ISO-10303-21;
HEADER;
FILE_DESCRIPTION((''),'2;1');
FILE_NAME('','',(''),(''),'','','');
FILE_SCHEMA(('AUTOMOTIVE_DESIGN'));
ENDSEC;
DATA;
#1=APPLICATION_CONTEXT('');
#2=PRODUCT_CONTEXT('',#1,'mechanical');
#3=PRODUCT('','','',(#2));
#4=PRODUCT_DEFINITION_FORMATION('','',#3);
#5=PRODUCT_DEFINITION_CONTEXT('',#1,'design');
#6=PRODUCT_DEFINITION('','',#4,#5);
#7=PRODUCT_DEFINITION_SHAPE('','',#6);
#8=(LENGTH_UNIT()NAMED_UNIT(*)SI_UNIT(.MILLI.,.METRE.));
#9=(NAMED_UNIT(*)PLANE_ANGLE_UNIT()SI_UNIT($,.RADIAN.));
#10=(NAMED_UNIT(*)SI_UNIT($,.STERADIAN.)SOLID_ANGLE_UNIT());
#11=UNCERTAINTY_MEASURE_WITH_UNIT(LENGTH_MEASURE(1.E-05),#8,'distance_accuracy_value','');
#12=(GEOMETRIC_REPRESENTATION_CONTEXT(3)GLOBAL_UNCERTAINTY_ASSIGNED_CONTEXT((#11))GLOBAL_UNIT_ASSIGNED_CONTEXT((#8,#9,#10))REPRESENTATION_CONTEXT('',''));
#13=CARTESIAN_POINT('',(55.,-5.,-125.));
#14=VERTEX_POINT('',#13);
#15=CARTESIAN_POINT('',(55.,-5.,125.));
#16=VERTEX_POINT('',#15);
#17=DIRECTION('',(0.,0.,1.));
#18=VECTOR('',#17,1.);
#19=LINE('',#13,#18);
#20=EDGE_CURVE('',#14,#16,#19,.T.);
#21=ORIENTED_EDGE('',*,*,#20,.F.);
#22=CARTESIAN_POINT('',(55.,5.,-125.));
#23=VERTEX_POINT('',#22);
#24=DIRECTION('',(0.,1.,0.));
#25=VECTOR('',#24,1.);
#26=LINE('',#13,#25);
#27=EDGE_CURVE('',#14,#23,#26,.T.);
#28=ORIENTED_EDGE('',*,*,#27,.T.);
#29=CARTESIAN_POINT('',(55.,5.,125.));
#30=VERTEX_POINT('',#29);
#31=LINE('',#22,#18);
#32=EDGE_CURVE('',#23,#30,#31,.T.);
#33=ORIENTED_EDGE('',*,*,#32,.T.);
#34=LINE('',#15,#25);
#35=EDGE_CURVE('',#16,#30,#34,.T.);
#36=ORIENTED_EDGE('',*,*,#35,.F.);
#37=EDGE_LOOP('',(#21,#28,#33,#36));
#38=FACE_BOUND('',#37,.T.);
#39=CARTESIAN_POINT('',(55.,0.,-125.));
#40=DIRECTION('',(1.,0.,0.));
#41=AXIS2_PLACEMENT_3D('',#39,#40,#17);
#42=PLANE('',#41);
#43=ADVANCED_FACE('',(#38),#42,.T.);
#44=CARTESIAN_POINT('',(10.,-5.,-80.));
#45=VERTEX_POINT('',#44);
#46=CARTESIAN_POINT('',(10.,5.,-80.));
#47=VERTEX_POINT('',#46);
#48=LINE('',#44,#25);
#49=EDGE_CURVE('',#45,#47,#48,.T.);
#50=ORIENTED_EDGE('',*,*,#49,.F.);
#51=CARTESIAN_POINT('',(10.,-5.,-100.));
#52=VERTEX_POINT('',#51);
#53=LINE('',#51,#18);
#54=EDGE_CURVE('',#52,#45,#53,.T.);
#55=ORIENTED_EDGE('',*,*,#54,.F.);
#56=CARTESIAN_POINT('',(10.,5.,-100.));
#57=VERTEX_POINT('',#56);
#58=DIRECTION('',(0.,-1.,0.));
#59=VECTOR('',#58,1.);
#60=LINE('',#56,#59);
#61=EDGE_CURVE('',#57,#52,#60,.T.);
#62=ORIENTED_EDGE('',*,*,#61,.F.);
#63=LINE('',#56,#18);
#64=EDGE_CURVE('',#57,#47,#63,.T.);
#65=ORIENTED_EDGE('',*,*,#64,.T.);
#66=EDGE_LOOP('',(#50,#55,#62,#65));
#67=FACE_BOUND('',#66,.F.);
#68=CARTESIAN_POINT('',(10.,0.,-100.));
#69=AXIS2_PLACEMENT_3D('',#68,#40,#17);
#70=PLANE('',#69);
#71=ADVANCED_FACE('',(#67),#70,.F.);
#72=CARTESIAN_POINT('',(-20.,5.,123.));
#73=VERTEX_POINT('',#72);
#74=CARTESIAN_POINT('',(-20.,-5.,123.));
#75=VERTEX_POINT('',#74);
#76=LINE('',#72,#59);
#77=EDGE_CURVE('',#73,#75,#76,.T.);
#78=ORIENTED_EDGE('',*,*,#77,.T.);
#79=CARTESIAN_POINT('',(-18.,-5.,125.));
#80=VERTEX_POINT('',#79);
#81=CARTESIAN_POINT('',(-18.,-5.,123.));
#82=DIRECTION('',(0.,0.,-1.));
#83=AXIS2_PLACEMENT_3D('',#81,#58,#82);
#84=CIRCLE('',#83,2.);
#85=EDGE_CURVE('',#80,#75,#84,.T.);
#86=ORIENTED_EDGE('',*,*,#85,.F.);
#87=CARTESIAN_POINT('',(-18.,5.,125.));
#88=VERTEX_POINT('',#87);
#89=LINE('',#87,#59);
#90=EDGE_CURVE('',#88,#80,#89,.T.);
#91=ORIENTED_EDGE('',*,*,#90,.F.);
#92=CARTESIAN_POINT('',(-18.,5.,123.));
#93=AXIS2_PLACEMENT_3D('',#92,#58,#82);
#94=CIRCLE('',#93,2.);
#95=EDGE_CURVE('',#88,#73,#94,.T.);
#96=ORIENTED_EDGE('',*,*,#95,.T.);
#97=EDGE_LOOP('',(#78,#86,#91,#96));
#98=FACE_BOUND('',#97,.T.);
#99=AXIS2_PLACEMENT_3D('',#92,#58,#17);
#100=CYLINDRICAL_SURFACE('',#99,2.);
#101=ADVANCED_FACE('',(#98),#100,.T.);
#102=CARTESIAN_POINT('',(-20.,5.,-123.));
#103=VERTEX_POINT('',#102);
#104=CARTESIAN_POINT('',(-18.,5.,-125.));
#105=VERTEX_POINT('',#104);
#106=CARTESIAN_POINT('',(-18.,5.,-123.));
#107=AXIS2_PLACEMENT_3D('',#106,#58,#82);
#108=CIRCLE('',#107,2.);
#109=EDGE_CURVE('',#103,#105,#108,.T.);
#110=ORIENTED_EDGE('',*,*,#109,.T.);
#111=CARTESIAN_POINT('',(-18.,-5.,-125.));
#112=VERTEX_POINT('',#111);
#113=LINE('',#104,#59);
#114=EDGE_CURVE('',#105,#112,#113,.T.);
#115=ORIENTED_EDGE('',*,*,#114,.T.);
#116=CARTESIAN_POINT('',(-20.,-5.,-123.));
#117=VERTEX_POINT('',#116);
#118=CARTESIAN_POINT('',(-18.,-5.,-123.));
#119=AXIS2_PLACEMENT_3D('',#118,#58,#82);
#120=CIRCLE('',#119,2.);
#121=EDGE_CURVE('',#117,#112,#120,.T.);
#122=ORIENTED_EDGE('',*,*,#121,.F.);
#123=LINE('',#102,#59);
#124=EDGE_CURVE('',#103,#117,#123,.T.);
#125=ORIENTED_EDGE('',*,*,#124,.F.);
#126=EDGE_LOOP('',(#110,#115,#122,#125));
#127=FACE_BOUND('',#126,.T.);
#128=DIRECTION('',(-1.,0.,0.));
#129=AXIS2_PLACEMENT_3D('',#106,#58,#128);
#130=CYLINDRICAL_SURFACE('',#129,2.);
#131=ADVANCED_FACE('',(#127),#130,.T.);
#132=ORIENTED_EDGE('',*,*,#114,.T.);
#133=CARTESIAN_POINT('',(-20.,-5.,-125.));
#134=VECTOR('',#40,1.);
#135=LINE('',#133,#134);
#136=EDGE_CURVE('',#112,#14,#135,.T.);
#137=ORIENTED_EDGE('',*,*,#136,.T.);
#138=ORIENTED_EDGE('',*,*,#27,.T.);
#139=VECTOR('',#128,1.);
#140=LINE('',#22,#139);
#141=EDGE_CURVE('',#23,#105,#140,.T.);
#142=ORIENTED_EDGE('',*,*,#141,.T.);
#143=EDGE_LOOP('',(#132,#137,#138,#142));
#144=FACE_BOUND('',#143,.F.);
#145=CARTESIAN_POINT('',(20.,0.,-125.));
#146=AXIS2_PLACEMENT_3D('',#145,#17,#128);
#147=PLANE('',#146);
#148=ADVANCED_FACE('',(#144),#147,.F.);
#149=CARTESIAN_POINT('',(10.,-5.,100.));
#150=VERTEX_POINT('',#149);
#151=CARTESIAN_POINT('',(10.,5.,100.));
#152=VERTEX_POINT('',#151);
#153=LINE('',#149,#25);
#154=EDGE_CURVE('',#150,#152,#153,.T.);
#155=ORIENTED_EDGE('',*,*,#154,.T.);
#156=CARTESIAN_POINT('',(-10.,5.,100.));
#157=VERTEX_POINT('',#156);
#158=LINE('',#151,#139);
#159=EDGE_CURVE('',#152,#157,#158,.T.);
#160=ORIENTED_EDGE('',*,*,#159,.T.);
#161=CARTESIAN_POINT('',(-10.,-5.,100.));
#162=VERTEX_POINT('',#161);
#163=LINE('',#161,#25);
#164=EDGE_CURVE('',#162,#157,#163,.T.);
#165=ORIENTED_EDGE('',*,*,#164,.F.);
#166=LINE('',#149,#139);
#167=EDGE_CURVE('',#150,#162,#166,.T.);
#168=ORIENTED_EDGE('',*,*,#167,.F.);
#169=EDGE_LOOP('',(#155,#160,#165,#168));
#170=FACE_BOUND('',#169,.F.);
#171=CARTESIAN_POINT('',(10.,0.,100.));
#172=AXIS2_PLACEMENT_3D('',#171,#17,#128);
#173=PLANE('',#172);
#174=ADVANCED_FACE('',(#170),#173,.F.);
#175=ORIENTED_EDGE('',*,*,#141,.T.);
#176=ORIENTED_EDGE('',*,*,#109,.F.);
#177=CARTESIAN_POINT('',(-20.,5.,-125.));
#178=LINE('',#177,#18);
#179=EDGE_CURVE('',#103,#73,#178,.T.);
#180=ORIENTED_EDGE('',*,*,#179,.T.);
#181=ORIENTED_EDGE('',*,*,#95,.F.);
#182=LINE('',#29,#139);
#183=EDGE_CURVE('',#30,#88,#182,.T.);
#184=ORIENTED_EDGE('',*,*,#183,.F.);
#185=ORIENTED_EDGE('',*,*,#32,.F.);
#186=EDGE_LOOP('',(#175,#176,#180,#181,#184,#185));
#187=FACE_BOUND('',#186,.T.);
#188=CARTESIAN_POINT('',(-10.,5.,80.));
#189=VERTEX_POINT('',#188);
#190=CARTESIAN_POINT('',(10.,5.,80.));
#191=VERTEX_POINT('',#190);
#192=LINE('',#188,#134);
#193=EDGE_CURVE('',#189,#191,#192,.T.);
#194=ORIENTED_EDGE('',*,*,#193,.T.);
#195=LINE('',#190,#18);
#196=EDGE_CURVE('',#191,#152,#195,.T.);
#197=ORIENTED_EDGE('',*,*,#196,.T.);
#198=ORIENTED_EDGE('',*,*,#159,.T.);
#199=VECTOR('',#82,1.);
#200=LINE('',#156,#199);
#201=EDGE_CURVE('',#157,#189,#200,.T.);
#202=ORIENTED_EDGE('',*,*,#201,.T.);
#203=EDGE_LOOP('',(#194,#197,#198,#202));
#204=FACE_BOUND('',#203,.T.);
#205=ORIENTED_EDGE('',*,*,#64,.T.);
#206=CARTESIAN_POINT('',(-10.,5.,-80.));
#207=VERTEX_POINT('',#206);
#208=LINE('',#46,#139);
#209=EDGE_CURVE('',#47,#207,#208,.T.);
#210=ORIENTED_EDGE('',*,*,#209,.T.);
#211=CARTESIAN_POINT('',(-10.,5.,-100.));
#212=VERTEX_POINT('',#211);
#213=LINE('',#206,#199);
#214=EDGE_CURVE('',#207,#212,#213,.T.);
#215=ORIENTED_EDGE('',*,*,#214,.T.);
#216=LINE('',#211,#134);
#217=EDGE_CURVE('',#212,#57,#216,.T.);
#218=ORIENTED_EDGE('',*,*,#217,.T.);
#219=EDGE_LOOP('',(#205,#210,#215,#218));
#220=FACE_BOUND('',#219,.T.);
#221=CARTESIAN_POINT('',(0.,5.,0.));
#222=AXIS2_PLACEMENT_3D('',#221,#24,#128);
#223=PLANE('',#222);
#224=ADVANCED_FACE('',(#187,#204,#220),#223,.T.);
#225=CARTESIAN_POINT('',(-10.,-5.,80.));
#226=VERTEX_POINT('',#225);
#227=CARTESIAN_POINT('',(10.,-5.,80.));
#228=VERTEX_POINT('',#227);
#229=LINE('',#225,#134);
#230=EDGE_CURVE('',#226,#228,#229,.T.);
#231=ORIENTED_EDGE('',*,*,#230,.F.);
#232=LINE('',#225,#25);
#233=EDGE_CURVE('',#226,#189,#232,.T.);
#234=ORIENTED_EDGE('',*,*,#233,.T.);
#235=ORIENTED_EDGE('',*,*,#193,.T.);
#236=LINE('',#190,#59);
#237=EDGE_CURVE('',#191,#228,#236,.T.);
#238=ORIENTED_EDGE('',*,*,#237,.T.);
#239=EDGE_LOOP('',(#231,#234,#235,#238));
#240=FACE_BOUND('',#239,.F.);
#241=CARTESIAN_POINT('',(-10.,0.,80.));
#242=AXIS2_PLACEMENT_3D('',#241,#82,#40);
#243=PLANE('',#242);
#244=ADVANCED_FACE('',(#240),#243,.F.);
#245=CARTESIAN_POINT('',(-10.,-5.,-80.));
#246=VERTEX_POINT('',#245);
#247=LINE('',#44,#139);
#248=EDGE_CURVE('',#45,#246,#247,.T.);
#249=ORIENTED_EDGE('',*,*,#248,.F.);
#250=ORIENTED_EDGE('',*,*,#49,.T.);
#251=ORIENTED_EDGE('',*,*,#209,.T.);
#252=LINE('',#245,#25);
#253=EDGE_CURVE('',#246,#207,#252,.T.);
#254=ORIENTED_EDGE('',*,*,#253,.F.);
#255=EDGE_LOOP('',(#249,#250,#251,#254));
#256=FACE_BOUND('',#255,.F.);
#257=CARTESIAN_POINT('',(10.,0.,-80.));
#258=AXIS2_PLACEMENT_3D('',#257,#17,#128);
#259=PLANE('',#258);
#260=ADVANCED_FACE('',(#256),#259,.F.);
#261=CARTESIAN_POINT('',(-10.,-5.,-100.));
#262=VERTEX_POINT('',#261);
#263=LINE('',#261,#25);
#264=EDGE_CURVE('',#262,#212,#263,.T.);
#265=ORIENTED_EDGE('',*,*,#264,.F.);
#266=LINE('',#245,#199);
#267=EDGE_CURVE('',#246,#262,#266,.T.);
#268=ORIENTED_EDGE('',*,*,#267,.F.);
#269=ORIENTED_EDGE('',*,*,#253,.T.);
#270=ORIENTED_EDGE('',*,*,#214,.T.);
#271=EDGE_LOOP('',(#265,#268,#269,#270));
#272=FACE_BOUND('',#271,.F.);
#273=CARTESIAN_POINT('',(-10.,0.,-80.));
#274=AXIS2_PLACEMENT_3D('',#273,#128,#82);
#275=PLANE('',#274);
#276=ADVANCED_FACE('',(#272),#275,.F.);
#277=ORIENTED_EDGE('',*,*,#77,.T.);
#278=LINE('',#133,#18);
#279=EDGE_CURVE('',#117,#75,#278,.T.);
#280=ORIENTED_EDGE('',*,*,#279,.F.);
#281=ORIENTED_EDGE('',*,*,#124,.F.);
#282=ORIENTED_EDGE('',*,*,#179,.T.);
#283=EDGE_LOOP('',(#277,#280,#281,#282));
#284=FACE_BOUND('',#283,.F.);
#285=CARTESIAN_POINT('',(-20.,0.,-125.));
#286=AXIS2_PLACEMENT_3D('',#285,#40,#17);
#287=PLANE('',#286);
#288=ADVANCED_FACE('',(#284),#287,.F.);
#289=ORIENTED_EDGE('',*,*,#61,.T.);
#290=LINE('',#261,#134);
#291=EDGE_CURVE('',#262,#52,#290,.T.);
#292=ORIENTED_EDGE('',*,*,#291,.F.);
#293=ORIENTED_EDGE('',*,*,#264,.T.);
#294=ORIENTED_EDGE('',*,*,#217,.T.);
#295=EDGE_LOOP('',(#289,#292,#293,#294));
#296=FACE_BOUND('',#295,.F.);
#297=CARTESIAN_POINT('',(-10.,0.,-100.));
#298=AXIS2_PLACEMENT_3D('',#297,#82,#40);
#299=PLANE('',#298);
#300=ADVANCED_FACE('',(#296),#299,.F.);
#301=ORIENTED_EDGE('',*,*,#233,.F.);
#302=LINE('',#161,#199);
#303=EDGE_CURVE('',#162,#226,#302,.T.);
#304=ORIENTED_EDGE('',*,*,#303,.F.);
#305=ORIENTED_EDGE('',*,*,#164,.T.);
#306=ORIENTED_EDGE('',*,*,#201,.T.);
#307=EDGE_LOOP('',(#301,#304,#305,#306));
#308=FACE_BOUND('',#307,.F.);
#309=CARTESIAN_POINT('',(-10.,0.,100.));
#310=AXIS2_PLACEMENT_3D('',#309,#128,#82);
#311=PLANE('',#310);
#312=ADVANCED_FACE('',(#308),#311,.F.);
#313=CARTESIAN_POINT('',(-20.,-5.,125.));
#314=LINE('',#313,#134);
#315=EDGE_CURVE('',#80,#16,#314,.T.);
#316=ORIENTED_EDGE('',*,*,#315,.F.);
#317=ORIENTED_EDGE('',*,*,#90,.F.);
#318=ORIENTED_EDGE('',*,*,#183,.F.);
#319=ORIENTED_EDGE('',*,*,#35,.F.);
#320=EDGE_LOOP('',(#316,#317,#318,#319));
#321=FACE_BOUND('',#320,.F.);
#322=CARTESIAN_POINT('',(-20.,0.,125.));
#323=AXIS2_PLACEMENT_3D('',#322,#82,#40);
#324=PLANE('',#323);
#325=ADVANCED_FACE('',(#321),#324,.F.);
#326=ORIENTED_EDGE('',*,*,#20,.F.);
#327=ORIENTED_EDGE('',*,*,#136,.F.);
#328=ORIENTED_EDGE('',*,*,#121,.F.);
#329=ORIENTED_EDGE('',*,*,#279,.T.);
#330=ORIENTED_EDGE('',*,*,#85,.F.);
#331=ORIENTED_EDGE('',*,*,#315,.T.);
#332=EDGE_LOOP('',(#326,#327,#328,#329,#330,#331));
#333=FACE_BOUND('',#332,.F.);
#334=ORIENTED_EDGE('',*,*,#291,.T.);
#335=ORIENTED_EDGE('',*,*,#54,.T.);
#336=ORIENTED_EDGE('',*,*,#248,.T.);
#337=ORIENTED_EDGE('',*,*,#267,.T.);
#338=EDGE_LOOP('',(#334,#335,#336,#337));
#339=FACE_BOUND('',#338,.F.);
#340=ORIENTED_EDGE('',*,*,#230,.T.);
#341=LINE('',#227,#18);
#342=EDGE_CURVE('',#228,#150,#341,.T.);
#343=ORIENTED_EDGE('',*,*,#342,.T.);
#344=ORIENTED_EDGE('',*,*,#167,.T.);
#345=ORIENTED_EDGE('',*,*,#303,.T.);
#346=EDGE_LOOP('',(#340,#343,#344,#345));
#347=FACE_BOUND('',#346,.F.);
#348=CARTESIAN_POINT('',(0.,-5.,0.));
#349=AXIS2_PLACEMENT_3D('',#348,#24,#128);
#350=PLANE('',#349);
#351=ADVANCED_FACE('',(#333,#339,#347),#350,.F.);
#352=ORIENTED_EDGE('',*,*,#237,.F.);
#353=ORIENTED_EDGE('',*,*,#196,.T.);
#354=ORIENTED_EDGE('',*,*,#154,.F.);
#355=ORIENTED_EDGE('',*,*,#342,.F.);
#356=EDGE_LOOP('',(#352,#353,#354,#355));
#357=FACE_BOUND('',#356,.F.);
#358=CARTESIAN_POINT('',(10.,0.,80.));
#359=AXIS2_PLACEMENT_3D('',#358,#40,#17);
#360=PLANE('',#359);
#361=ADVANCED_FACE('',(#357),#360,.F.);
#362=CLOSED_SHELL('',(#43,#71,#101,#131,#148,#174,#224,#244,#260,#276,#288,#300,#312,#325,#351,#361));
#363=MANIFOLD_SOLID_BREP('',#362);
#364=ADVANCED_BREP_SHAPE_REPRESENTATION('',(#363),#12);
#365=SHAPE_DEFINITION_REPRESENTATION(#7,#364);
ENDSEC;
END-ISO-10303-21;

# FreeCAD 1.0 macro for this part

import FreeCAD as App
import Part
import Sketcher

V = App.Vector
Q = App.Units.Quantity


def edges_at(feature, points):
    """Names of the edges that pass closest to the given points."""
    edges = feature.Shape.Edges
    near = lambda p: min(range(len(edges)), key=lambda i: edges[i].distToShape(Part.Vertex(*p))[0])
    return sorted({f"Edge{near(p) + 1}" for p in points})

doc = App.newDocument("Part")
body = doc.addObject("PartDesign::Body", "Body")

sketch1 = body.newObject("Sketcher::SketchObject", "Sketch")
sketch1.AttachmentSupport = (doc.getObject("XZ_Plane"), [""])
sketch1.MapMode = "FlatFace"
sketch1.addGeometry(Part.LineSegment(V(-20, 125, 0), V(55, 125, 0)), False)
sketch1.addGeometry(Part.LineSegment(V(55, 125, 0), V(55, -125, 0)), False)
sketch1.addGeometry(Part.LineSegment(V(55, -125, 0), V(-20, -125, 0)), False)
sketch1.addGeometry(Part.LineSegment(V(-20, -125, 0), V(-20, 125, 0)), False)
sketch1.addGeometry(Part.LineSegment(V(10, -100, 0), V(10, -80, 0)), False)
sketch1.addGeometry(Part.LineSegment(V(10, -80, 0), V(-10, -80, 0)), False)
sketch1.addGeometry(Part.LineSegment(V(-10, -80, 0), V(-10, -100, 0)), False)
sketch1.addGeometry(Part.LineSegment(V(-10, -100, 0), V(10, -100, 0)), False)
sketch1.addGeometry(Part.LineSegment(V(10, 80, 0), V(10, 100, 0)), False)
sketch1.addGeometry(Part.LineSegment(V(10, 100, 0), V(-10, 100, 0)), False)
sketch1.addGeometry(Part.LineSegment(V(-10, 100, 0), V(-10, 80, 0)), False)
sketch1.addGeometry(Part.LineSegment(V(-10, 80, 0), V(10, 80, 0)), False)
sketch1.addConstraint(Sketcher.Constraint("Coincident", 0, 2, 1, 1))
sketch1.addConstraint(Sketcher.Constraint("Coincident", 1, 2, 2, 1))
sketch1.addConstraint(Sketcher.Constraint("Coincident", 2, 2, 3, 1))
sketch1.addConstraint(Sketcher.Constraint("Coincident", 3, 2, 0, 1))
sketch1.addConstraint(Sketcher.Constraint("Coincident", 4, 2, 5, 1))
sketch1.addConstraint(Sketcher.Constraint("Coincident", 5, 2, 6, 1))
sketch1.addConstraint(Sketcher.Constraint("Coincident", 6, 2, 7, 1))
sketch1.addConstraint(Sketcher.Constraint("Coincident", 7, 2, 4, 1))
sketch1.addConstraint(Sketcher.Constraint("Coincident", 8, 2, 9, 1))
sketch1.addConstraint(Sketcher.Constraint("Coincident", 9, 2, 10, 1))
sketch1.addConstraint(Sketcher.Constraint("Coincident", 10, 2, 11, 1))
sketch1.addConstraint(Sketcher.Constraint("Coincident", 11, 2, 8, 1))
sketch1.addConstraint(Sketcher.Constraint("Horizontal", 0))
sketch1.addConstraint(Sketcher.Constraint("Vertical", 1))
sketch1.addConstraint(Sketcher.Constraint("Horizontal", 2))
sketch1.addConstraint(Sketcher.Constraint("Vertical", 3))
sketch1.addConstraint(Sketcher.Constraint("Vertical", 4))
sketch1.addConstraint(Sketcher.Constraint("Horizontal", 5))
sketch1.addConstraint(Sketcher.Constraint("Vertical", 6))
sketch1.addConstraint(Sketcher.Constraint("Horizontal", 7))
sketch1.addConstraint(Sketcher.Constraint("Vertical", 8))
sketch1.addConstraint(Sketcher.Constraint("Horizontal", 9))
sketch1.addConstraint(Sketcher.Constraint("Vertical", 10))
sketch1.addConstraint(Sketcher.Constraint("Horizontal", 11))
sketch1.addConstraint(Sketcher.Constraint("Symmetric", 6, 2, 8, 2, -1, 1))
sketch1.addConstraint(Sketcher.Constraint("Symmetric", 4, 2, 10, 2, -1, 1))
sketch1.addConstraint(Sketcher.Constraint("Vertical", 7, 2, 8, 2))
sketch1.addConstraint(Sketcher.Constraint("Equal", 11, 4))
sketch1.addConstraint(Sketcher.Constraint("DistanceX", 5, 2, 5, 1, Q("20 mm")))
sketch1.addConstraint(Sketcher.Constraint("DistanceY", 1, 2, 1, 1, Q("250 mm")))
sketch1.addConstraint(Sketcher.Constraint("DistanceX", 2, 2, -1, 1, Q("20 mm")))
sketch1.addConstraint(Sketcher.Constraint("DistanceY", 4, 2, 8, 2, Q("180 mm")))
sketch1.addConstraint(Sketcher.Constraint("DistanceX", 0, 1, 0, 2, Q("75 mm")))
sketch1.addConstraint(Sketcher.Constraint("DistanceY", -1, 1, 0, 2, Q("125 mm")))
pad1 = body.newObject("PartDesign::Pad", "Pad")
pad1.Profile = sketch1
pad1.Length = 10
pad1.Midplane = True
doc.recompute()

fillet = body.newObject("PartDesign::Fillet", "Fillet")
fillet.Base = (pad1, edges_at(pad1, [(-20, 0, 125), (-20, 0, -125)]))
fillet.Radius = 2

doc.recompute()
